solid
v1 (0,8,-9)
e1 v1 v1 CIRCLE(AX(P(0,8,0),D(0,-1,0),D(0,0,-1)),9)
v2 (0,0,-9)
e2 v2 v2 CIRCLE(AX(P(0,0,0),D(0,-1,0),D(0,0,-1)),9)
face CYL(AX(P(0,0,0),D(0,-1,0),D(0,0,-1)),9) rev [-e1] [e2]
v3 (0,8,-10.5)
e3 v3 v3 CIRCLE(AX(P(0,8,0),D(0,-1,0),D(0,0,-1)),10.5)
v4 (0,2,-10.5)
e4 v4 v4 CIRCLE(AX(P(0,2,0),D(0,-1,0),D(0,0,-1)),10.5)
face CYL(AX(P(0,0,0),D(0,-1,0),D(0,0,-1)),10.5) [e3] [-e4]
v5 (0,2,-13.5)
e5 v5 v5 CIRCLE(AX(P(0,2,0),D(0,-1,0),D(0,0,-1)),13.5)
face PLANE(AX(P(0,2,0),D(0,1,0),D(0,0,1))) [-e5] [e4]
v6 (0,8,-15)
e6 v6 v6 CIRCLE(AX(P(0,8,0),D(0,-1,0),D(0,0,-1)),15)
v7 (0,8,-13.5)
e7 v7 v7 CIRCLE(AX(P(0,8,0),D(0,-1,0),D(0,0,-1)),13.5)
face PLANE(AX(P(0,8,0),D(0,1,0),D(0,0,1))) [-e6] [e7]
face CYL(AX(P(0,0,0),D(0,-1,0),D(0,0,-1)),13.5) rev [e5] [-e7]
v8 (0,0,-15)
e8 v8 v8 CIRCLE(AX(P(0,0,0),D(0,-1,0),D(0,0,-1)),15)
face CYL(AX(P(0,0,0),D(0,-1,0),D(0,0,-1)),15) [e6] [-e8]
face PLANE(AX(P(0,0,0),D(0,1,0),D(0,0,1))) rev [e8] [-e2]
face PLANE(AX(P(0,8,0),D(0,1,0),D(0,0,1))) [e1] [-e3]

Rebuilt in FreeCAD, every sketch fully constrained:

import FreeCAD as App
import Part
import Sketcher
Q = App.Units.Quantity


def add_polygon(sketch, points):
    """Adds a closed chain of lines whose ends are joined by coincident constraints."""
    first, n = sketch.GeometryCount, len(points)
    for a, b in zip(points, points[1:] + points[:1]):
        sketch.addGeometry(Part.LineSegment(App.Vector(*a, 0), App.Vector(*b, 0)), False)
    for i in range(n):
        sketch.addConstraint(Sketcher.Constraint("Coincident", first + i, 2, first + (i + 1) % n, 1))

doc = App.newDocument("Part")
body = doc.addObject("PartDesign::Body", "Body")

# Sketch on XY plane
sketch1 = body.newObject("Sketcher::SketchObject", "Sketch")
sketch1.AttachmentSupport = (doc.getObject("XY_Plane"), [""])
sketch1.MapMode = "FlatFace"
add_polygon(sketch1, [(-13.5, 2), (-13.5, 8), (-15, 8), (-15, 0), (-9, 0), (-9, 8), (-10.5, 8), (-10.5, 2)])  # lines 0-7
sketch1.addConstraint([
    Sketcher.Constraint("Vertical", 0),
    Sketcher.Constraint("Horizontal", 1),
    Sketcher.Constraint("Vertical", 2),
    Sketcher.Constraint("Horizontal", 3),
    Sketcher.Constraint("Vertical", 4),
    Sketcher.Constraint("Horizontal", 5),
    Sketcher.Constraint("Vertical", 6),
    Sketcher.Constraint("Horizontal", 7),
    Sketcher.Constraint("PointOnObject", 2, 2, -1),
    Sketcher.Constraint("Horizontal", 1, 2, 4, 2),
    Sketcher.Constraint("Equal", 1, 5),
    Sketcher.Constraint("Equal", 3, 0),
    Sketcher.Constraint("DistanceX", 3, 1, 3, 2, Q("6 mm")),
    Sketcher.Constraint("DistanceX", 7, 2, 7, 1, Q("3 mm")),
    Sketcher.Constraint("DistanceY", 2, 2, 2, 1, Q("8 mm")),
    Sketcher.Constraint("DistanceX", 1, 2, -1, 1, Q("15 mm")),
])
revolution = body.newObject("PartDesign::Revolution", "Revolution")
revolution.Profile = sketch1
revolution.ReferenceAxis = (sketch1, ["V_Axis"])
revolution.Angle = 360

doc.recompute()
